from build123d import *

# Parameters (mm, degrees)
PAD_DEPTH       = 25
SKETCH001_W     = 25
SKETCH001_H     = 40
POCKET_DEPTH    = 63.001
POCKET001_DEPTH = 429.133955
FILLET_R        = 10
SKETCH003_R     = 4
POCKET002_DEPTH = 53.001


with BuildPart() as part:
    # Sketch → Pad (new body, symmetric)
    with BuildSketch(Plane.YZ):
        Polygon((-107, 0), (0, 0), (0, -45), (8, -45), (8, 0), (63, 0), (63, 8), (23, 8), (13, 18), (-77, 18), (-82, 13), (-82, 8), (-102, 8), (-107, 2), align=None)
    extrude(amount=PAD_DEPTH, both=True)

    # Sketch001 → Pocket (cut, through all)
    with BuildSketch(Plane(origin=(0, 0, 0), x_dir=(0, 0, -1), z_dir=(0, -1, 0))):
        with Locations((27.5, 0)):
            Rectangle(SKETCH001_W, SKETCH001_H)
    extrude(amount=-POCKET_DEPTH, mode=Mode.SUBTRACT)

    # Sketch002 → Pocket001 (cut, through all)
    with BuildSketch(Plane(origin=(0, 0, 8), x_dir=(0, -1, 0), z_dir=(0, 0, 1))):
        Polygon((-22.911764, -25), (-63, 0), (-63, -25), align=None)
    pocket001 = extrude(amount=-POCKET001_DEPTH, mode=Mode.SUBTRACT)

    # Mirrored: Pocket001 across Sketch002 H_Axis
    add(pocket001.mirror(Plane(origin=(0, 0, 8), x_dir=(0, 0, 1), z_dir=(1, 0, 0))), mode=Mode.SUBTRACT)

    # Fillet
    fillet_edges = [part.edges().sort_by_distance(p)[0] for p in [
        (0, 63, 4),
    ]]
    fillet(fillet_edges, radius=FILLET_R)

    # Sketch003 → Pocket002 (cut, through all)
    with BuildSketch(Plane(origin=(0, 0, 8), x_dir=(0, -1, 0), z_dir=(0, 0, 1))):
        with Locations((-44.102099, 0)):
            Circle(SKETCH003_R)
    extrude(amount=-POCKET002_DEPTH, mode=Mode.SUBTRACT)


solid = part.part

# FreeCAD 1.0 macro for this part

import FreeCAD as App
import Part
import Sketcher
from FreeCAD import Vector
Q = App.Units.Quantity


def edges_at(feature, points):
    """Names of the edges that pass closest to the given points."""
    edges = feature.Shape.Edges
    near = lambda p: min(range(len(edges)), key=lambda i: edges[i].distToShape(Part.Vertex(*p))[0])
    return sorted({f"Edge{near(p) + 1}" for p in points})

doc = App.newDocument("Part")
params = doc.addObject("Spreadsheet::Sheet", "Params")
for row, (alias, value) in enumerate([
    ("sketch1_width", "107 mm"),
    ("sketch1_width2", "8 mm"),
    ("sketch1_width3", "55 mm"),
    ("sketch1_width4", "40 mm"),
    ("sketch1_width5", "90 mm"),
    ("pad1_length", "50 mm"),
    ("sketch2_width", "40 mm"),
    ("sketch2_height", "25 mm"),
    ("sketch3_width", "25 mm"),
    ("fillet_radius", "10 mm"),
    ("sketch4_diameter", "8 mm"),
], start=1):
    params.set(f"A{row}", alias)
    params.set(f"B{row}", "=" + value)
    params.setAlias(f"B{row}", alias)

body = doc.addObject("PartDesign::Body", "Body")

sketch1 = doc.addObject("Sketcher::SketchObject", "Sketch")
body.addObject(sketch1)
sketch1.AttachmentSupport = (doc.YZ_Plane, [""])
sketch1.MapMode = "FlatFace"
sketch1.addGeometry([
    Part.LineSegment(Vector(-107, 0, 0), Vector(0, 0, 0)),
    Part.LineSegment(Vector(0, 0, 0), Vector(0, -45, 0)),
    Part.LineSegment(Vector(0, -45, 0), Vector(8, -45, 0)),
    Part.LineSegment(Vector(8, -45, 0), Vector(8, 0, 0)),
    Part.LineSegment(Vector(8, 0, 0), Vector(63, 0, 0)),
    Part.LineSegment(Vector(63, 0, 0), Vector(63, 8, 0)),
    Part.LineSegment(Vector(63, 8, 0), Vector(23, 8, 0)),
    Part.LineSegment(Vector(23, 8, 0), Vector(13, 18, 0)),
    Part.LineSegment(Vector(13, 18, 0), Vector(-77, 18, 0)),
    Part.LineSegment(Vector(-77, 18, 0), Vector(-82, 13, 0)),
    Part.LineSegment(Vector(-82, 13, 0), Vector(-82, 8, 0)),
    Part.LineSegment(Vector(-82, 8, 0), Vector(-102, 8, 0)),
    Part.LineSegment(Vector(-102, 8, 0), Vector(-107, 2, 0)),
    Part.LineSegment(Vector(-107, 2, 0), Vector(-107, 0, 0)),
], False)
sketch1.addConstraint([
    Sketcher.Constraint("Coincident", 0, 2, 1, 1),
    Sketcher.Constraint("Coincident", 1, 2, 2, 1),
    Sketcher.Constraint("Coincident", 2, 2, 3, 1),
    Sketcher.Constraint("Coincident", 3, 2, 4, 1),
    Sketcher.Constraint("Coincident", 4, 2, 5, 1),
    Sketcher.Constraint("Coincident", 5, 2, 6, 1),
    Sketcher.Constraint("Coincident", 6, 2, 7, 1),
    Sketcher.Constraint("Coincident", 7, 2, 8, 1),
    Sketcher.Constraint("Coincident", 8, 2, 9, 1),
    Sketcher.Constraint("Coincident", 9, 2, 10, 1),
    Sketcher.Constraint("Coincident", 10, 2, 11, 1),
    Sketcher.Constraint("Coincident", 11, 2, 12, 1),
    Sketcher.Constraint("Coincident", 12, 2, 13, 1),
    Sketcher.Constraint("Coincident", 13, 2, 0, 1),
    Sketcher.Constraint("Horizontal", 0),
    Sketcher.Constraint("Vertical", 1),
    Sketcher.Constraint("Horizontal", 2),
    Sketcher.Constraint("Vertical", 3),
    Sketcher.Constraint("Horizontal", 4),
    Sketcher.Constraint("Vertical", 5),
    Sketcher.Constraint("Horizontal", 6),
    Sketcher.Constraint("Horizontal", 8),
    Sketcher.Constraint("Vertical", 10),
    Sketcher.Constraint("Horizontal", 11),
    Sketcher.Constraint("Vertical", 13),
    Sketcher.Constraint("Coincident", 0, 2, -1, 1),
    Sketcher.Constraint("PointOnObject", 3, 2, -1),
    Sketcher.Constraint("Perpendicular", 7, 9),
    Sketcher.Constraint("Horizontal", 6, 2, 10, 2),
    Sketcher.Constraint("Equal", 2, 5),
    Sketcher.Constraint("DistanceX", 0, 1, 0, 2, 107.0),
    Sketcher.Constraint("DistanceX", 2, 1, 2, 2, 8.0),
    Sketcher.Constraint("DistanceX", 4, 1, 4, 2, 55.0),
    Sketcher.Constraint("DistanceX", 6, 2, 6, 1, 40.0),
    Sketcher.Constraint("DistanceX", 8, 2, 8, 1, 90.0),
    Sketcher.Constraint("DistanceX", 11, 2, 11, 1, 20.0),
    Sketcher.Constraint("DistanceY", 1, 2, 1, 1, 45.0),
    Sketcher.Constraint("DistanceY", 10, 2, 10, 1, 5.0),
    Sketcher.Constraint("DistanceY", 13, 2, 13, 1, 2.0),
    Sketcher.Constraint("Angle", 7, Q("135 deg")),
    Sketcher.Constraint("DistanceX", -1, 1, 7, 2, 13.0),
])
sketch1.setExpression("Constraints[30]", "Params.sketch1_width")
sketch1.setExpression("Constraints[31]", "Params.sketch1_width2")
sketch1.setExpression("Constraints[32]", "Params.sketch1_width3")
sketch1.setExpression("Constraints[33]", "Params.sketch1_width4")
sketch1.setExpression("Constraints[34]", "Params.sketch1_width5")
pad1 = doc.addObject("PartDesign::Pad", "Pad")
body.addObject(pad1)
pad1.Profile = sketch1
pad1.setExpression("Length", "Params.pad1_length")
pad1.Midplane = True

sketch2 = doc.addObject("Sketcher::SketchObject", "Sketch001")
body.addObject(sketch2)
sketch2.AttachmentSupport = (doc.XZ_Plane, [""])
sketch2.MapMode = "FlatFace"
sketch2.addGeometry([
    Part.LineSegment(Vector(20, -15, 0), Vector(-20, -15, 0)),
    Part.LineSegment(Vector(-20, -15, 0), Vector(-20, -40, 0)),
    Part.LineSegment(Vector(-20, -40, 0), Vector(20, -40, 0)),
    Part.LineSegment(Vector(20, -40, 0), Vector(20, -15, 0)),
], False)
sketch2.addConstraint([
    Sketcher.Constraint("Coincident", 0, 2, 1, 1),
    Sketcher.Constraint("Coincident", 1, 2, 2, 1),
    Sketcher.Constraint("Coincident", 2, 2, 3, 1),
    Sketcher.Constraint("Coincident", 3, 2, 0, 1),
    Sketcher.Constraint("Horizontal", 0),
    Sketcher.Constraint("Vertical", 1),
    Sketcher.Constraint("Horizontal", 2),
    Sketcher.Constraint("Vertical", 3),
    Sketcher.Constraint("DistanceX", 0, 2, 0, 1, 40.0),
    Sketcher.Constraint("DistanceY", 1, 2, 1, 1, 25.0),
    Sketcher.Constraint("DistanceX", 0, 2, -1, 1, 20.0),
    Sketcher.Constraint("DistanceY", 0, 2, -1, 1, 15.0),
])
sketch2.setExpression("Constraints[8]", "Params.sketch2_width")
sketch2.setExpression("Constraints[9]", "Params.sketch2_height")
pocket1 = doc.addObject("PartDesign::Pocket", "Pocket")
body.addObject(pocket1)
pocket1.Profile = sketch2
pocket1.Type = "ThroughAll"

sketch3 = doc.addObject("Sketcher::SketchObject", "Sketch002")
body.addObject(sketch3)
sketch3.AttachmentSupport = (doc.XY_Plane, [""])
sketch3.MapMode = "FlatFace"
sketch3.AttachmentOffset = App.Placement(Vector(0, 0, 8), App.Rotation())
sketch3.addGeometry([
    Part.LineSegment(Vector(-25, 23, 0), Vector(0, 63, 0)),
    Part.LineSegment(Vector(0, 63, 0), Vector(-25, 63, 0)),
    Part.LineSegment(Vector(-25, 63, 0), Vector(-25, 23, 0)),
], False)
sketch3.addConstraint([
    Sketcher.Constraint("Coincident", 0, 2, 1, 1),
    Sketcher.Constraint("Coincident", 1, 2, 2, 1),
    Sketcher.Constraint("Coincident", 2, 2, 0, 1),
    Sketcher.Constraint("Horizontal", 1),
    Sketcher.Constraint("Vertical", 2),
    Sketcher.Constraint("PointOnObject", 0, 2, -2),
    Sketcher.Constraint("DistanceX", 1, 2, 1, 1, 25.0),
    Sketcher.Constraint("DistanceY", -1, 1, 0, 2, 63.0),
    Sketcher.Constraint("DistanceY", 2, 2, 2, 1, 40.088236),
])
sketch3.setExpression("Constraints[6]", "Params.sketch3_width")
pocket2 = doc.addObject("PartDesign::Pocket", "Pocket001")
body.addObject(pocket2)
pocket2.Profile = sketch3
pocket2.Type = "ThroughAll"
doc.recompute()

mirrored = doc.addObject("PartDesign::Mirrored", "Mirrored")
body.addObject(mirrored)
mirrored.Originals = [pocket2]
mirrored.MirrorPlane = (doc.YZ_Plane, [""])
body.Tip = mirrored
doc.recompute()

fillet = doc.addObject("PartDesign::Fillet", "Fillet")
body.addObject(fillet)
fillet.Base = (mirrored, edges_at(mirrored, [(0, 63, 4)]))
fillet.setExpression("Radius", "Params.fillet_radius")

sketch4 = doc.addObject("Sketcher::SketchObject", "Sketch003")
body.addObject(sketch4)
sketch4.AttachmentSupport = (doc.XY_Plane, [""])
sketch4.MapMode = "FlatFace"
sketch4.AttachmentOffset = App.Placement(Vector(0, 0, 8), App.Rotation())
sketch4.addGeometry(Part.Circle(Vector(0, 44.1, 0), Vector(0, 0, 1), 4), False)
sketch4.addConstraint([
    Sketcher.Constraint("PointOnObject", 0, 3, -2),
    Sketcher.Constraint("Diameter", 0, 8.0),
    Sketcher.Constraint("DistanceY", -1, 1, 0, 3, 44.102099),
])
sketch4.setExpression("Constraints[1]", "Params.sketch4_diameter")
pocket3 = doc.addObject("PartDesign::Pocket", "Pocket002")
body.addObject(pocket3)
pocket3.Profile = sketch4
pocket3.Type = "ThroughAll"

doc.recompute()
